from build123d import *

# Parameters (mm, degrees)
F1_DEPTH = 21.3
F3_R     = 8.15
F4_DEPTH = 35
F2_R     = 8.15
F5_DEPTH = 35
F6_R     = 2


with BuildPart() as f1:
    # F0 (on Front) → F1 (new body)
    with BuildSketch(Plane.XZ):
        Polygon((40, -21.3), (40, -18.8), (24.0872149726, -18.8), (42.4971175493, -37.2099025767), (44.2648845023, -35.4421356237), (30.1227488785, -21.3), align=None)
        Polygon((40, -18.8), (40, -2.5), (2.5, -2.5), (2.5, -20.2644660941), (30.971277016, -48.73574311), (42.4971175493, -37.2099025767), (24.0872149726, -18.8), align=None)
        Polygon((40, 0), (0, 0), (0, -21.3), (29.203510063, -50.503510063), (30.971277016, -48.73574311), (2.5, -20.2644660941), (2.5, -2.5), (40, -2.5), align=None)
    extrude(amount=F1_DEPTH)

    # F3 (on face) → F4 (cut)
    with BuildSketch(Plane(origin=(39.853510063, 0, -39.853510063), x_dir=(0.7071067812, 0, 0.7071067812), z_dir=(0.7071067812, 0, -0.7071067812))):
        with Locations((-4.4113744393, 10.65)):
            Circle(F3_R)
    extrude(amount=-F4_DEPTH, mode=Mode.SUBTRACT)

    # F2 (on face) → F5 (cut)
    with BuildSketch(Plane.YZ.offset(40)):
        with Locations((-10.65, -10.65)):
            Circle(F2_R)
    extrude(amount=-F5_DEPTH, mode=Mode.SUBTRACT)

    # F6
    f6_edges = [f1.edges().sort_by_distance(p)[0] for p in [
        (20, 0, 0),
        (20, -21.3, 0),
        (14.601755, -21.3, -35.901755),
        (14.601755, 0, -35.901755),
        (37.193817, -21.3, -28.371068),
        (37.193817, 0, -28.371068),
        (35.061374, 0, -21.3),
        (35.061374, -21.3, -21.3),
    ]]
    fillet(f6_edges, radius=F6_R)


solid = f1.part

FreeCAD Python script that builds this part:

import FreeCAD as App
import Part
import Sketcher

V = App.Vector
Q = App.Units.Quantity


def edges_at(feature, points):
    """Names of the edges that pass closest to the given points."""
    edges = feature.Shape.Edges
    near = lambda p: min(range(len(edges)), key=lambda i: edges[i].distToShape(Part.Vertex(*p))[0])
    return sorted({f"Edge{near(p) + 1}" for p in points})

doc = App.newDocument("Part")
body = doc.addObject("PartDesign::Body", "Body")

# Sketch on XZ plane
sketch1 = body.newObject("Sketcher::SketchObject", "Sketch")
sketch1.AttachmentSupport = (doc.getObject("XZ_Plane"), [""])
sketch1.MapMode = "FlatFace"
sketch1.addGeometry(Part.LineSegment(V(40, -21.3, 0), V(40, 0, 0)), False)
sketch1.addGeometry(Part.LineSegment(V(40, 0, 0), V(0, 0, 0)), False)
sketch1.addGeometry(Part.LineSegment(V(0, 0, 0), V(0, -21.3, 0)), False)
sketch1.addGeometry(Part.LineSegment(V(0, -21.3, 0), V(29.20351, -50.50351, 0)), False)
sketch1.addGeometry(Part.LineSegment(V(29.20351, -50.50351, 0), V(44.264885, -35.442136, 0)), False)
sketch1.addGeometry(Part.LineSegment(V(44.264885, -35.442136, 0), V(30.122749, -21.3, 0)), False)
sketch1.addGeometry(Part.LineSegment(V(30.122749, -21.3, 0), V(40, -21.3, 0)), False)
sketch1.addConstraint(Sketcher.Constraint("Coincident", 0, 2, 1, 1))
sketch1.addConstraint(Sketcher.Constraint("Coincident", 1, 2, 2, 1))
sketch1.addConstraint(Sketcher.Constraint("Coincident", 2, 2, 3, 1))
sketch1.addConstraint(Sketcher.Constraint("Coincident", 3, 2, 4, 1))
sketch1.addConstraint(Sketcher.Constraint("Coincident", 4, 2, 5, 1))
sketch1.addConstraint(Sketcher.Constraint("Coincident", 5, 2, 6, 1))
sketch1.addConstraint(Sketcher.Constraint("Coincident", 6, 2, 0, 1))
sketch1.addConstraint(Sketcher.Constraint("Vertical", 0))
sketch1.addConstraint(Sketcher.Constraint("Horizontal", 1))
sketch1.addConstraint(Sketcher.Constraint("Vertical", 2))
sketch1.addConstraint(Sketcher.Constraint("Horizontal", 6))
sketch1.addConstraint(Sketcher.Constraint("Coincident", 1, 2, -1, 1))
sketch1.addConstraint(Sketcher.Constraint("Perpendicular", 3, 4))
sketch1.addConstraint(Sketcher.Constraint("Perpendicular", 4, 5))
sketch1.addConstraint(Sketcher.Constraint("Horizontal", 2, 2, 5, 2))
sketch1.addConstraint(Sketcher.Constraint("DistanceX", 1, 2, 1, 1, Q("40 mm")))
sketch1.addConstraint(Sketcher.Constraint("Angle", 3, Q("-45 deg")))
sketch1.addConstraint(Sketcher.Constraint("Distance", 5, Q("20 mm")))
sketch1.addConstraint(Sketcher.Constraint("DistanceY", 0, 1, 0, 2, Q("21.3 mm")))
sketch1.addConstraint(Sketcher.Constraint("Distance", 3, Q("41.3 mm")))
pad1 = body.newObject("PartDesign::Pad", "Pad")
pad1.Profile = sketch1
pad1.Length = 21.3

# Sketch on an angled plane
sketch2 = body.newObject("Sketcher::SketchObject", "Sketch001")
sketch2.Placement = App.Placement(V(39.85351, 0, -39.85351), App.Rotation(V(0.707106781, 0, 0.707106781), V(0, -0.999999999, 0), V(0.707106781, 0, -0.707106781), "ZXY"))
sketch2.addGeometry(Part.Circle(V(-4.411374, 10.65, 0), V(0, 0, 1), 8.15), False)
sketch2.addConstraint(Sketcher.Constraint("Diameter", 0, Q("16.3 mm")))
sketch2.addConstraint(Sketcher.Constraint("DistanceY", -1, 1, 0, 3, Q("10.65 mm")))
sketch2.addConstraint(Sketcher.Constraint("DistanceX", 0, 3, -1, 1, Q("4.411374 mm")))
pocket1 = body.newObject("PartDesign::Pocket", "Pocket")
pocket1.Profile = sketch2
pocket1.Length = 35

# Sketch on YZ plane
sketch3 = body.newObject("Sketcher::SketchObject", "Sketch002")
sketch3.AttachmentSupport = (doc.getObject("YZ_Plane"), [""])
sketch3.MapMode = "FlatFace"
sketch3.AttachmentOffset = App.Placement(V(0, 0, 40), App.Rotation())
sketch3.addGeometry(Part.Circle(V(-10.65, -10.65, 0), V(0, 0, 1), 8.15), False)
sketch3.addConstraint(Sketcher.Constraint("Diameter", 0, Q("16.3 mm")))
sketch3.addConstraint(Sketcher.Constraint("DistanceX", 0, 3, -1, 1, Q("10.65 mm")))
sketch3.addConstraint(Sketcher.Constraint("DistanceY", 0, 3, -1, 1, Q("10.65 mm")))
pocket2 = body.newObject("PartDesign::Pocket", "Pocket001")
pocket2.Profile = sketch3
pocket2.Length = 35
doc.recompute()

fillet = body.newObject("PartDesign::Fillet", "Fillet")
fillet.Base = (pocket2, edges_at(pocket2, [
    (20, 0, 0),
    (20, -21.3, 0),
    (14.602, -21.3, -35.902),
    (14.602, 0, -35.902),
    (37.194, -21.3, -28.371),
    (37.194, 0, -28.371),
    (35.061, 0, -21.3),
    (35.061, -21.3, -21.3),
]))
fillet.Radius = 2

doc.recompute()
